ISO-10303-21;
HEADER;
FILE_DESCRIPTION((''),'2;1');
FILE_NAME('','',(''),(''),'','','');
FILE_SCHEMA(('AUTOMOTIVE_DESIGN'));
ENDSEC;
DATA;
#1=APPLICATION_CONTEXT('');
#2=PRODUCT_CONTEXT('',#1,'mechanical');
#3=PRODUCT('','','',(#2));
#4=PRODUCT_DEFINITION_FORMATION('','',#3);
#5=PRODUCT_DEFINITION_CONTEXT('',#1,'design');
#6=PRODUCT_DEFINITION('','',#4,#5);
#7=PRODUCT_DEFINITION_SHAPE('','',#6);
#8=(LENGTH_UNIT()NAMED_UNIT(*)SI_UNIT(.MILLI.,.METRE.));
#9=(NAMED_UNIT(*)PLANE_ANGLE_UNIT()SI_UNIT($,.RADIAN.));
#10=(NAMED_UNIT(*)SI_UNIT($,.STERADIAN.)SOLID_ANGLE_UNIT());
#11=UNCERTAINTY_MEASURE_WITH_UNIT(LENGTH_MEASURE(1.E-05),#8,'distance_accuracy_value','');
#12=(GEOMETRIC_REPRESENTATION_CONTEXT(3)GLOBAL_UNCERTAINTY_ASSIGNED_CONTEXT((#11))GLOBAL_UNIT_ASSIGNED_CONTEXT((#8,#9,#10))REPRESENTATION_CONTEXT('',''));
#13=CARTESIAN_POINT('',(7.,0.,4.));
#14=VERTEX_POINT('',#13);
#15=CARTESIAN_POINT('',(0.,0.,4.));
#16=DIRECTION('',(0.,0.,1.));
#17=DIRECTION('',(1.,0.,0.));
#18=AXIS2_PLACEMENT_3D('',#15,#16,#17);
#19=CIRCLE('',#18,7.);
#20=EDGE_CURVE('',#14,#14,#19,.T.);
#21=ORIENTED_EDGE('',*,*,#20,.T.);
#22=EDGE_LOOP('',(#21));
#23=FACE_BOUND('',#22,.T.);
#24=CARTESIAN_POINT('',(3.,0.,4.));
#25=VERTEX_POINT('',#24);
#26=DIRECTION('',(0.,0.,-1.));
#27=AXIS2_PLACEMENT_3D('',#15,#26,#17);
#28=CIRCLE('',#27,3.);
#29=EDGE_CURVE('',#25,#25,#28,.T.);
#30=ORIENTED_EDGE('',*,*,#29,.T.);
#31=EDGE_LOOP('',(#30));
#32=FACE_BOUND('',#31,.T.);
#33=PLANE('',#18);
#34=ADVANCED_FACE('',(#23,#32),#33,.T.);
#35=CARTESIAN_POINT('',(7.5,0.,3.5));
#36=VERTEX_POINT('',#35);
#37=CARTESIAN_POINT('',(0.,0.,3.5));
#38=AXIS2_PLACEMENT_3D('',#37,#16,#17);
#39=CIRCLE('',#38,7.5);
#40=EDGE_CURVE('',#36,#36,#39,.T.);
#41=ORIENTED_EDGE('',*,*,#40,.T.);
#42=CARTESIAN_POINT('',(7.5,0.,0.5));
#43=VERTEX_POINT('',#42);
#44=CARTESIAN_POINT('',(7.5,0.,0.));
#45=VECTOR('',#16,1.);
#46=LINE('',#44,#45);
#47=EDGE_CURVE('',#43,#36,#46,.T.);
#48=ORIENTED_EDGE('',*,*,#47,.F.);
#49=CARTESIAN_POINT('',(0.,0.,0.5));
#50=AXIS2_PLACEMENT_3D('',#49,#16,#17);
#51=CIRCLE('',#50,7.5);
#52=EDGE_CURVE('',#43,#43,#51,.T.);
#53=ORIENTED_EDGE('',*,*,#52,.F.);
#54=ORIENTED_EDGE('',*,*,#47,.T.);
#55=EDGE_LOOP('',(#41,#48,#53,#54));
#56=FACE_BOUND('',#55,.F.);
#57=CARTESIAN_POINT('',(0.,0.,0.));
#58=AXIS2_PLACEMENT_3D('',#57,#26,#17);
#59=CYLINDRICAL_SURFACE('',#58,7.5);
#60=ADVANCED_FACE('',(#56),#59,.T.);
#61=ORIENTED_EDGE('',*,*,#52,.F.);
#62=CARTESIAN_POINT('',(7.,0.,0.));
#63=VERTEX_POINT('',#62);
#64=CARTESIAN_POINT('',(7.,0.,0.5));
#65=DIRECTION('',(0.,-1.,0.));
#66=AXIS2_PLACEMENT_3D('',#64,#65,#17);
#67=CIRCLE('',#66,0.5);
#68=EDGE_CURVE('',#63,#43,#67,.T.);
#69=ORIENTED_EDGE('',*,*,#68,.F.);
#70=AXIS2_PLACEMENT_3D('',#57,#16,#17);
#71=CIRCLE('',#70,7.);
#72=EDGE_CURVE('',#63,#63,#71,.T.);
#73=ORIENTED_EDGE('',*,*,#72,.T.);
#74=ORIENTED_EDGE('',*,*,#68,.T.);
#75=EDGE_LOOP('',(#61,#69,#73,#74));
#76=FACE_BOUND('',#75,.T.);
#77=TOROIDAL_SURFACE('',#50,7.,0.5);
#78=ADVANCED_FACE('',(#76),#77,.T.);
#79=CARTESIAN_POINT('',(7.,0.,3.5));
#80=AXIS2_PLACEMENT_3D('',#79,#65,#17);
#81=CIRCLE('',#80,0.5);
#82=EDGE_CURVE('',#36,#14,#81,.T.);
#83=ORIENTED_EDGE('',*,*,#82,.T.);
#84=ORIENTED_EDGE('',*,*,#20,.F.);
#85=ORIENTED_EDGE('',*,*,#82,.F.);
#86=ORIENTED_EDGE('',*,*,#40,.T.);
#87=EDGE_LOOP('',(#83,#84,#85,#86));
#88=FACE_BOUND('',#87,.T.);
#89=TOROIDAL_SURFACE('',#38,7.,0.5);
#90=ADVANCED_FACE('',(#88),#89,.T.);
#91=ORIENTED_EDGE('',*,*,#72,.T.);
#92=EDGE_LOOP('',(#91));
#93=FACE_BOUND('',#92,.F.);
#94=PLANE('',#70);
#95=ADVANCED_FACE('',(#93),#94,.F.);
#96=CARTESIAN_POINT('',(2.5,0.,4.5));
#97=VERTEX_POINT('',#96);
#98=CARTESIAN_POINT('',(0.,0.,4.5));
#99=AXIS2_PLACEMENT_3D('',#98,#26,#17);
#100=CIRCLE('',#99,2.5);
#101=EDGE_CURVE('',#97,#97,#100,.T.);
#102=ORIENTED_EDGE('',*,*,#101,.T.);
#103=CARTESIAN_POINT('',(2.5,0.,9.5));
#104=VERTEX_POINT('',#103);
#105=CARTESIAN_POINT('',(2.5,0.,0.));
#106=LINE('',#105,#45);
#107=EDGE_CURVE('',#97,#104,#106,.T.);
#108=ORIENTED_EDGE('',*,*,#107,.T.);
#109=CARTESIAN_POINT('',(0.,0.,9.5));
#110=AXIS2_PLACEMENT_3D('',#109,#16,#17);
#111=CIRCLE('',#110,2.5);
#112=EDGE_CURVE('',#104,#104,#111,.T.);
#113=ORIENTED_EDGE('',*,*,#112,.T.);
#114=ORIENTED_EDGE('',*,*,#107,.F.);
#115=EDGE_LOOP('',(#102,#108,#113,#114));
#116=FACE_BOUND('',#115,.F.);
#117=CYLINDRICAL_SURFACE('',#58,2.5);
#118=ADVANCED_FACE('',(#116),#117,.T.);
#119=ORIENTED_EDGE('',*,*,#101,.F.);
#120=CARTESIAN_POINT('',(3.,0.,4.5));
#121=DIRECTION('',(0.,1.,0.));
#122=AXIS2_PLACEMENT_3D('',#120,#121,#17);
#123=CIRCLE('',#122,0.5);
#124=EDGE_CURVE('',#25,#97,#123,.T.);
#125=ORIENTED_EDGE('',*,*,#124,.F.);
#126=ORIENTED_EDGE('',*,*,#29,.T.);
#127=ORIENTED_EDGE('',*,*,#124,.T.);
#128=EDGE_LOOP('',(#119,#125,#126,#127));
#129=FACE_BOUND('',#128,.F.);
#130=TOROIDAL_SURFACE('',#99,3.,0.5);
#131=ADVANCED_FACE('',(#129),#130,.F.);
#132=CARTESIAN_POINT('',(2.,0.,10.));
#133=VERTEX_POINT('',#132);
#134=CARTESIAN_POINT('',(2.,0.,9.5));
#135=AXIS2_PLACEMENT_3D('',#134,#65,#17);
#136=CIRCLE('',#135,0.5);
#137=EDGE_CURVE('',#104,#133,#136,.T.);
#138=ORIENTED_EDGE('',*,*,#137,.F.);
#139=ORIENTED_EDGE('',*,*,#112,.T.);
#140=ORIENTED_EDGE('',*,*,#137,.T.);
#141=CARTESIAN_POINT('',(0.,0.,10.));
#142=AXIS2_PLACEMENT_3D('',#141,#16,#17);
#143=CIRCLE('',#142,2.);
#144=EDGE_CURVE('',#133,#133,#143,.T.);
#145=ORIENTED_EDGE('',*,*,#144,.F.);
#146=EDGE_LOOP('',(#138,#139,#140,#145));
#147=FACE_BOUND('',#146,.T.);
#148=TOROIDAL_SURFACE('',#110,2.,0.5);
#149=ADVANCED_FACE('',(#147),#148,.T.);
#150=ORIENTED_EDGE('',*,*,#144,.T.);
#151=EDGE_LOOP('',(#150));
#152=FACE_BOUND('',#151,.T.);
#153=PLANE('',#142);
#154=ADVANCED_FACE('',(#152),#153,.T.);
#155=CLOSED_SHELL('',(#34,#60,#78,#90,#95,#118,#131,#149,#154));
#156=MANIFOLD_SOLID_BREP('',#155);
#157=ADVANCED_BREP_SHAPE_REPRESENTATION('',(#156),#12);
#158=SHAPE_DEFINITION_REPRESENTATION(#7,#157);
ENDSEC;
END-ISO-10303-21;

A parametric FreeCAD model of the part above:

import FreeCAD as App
import Part
import Sketcher

V = App.Vector
Q = App.Units.Quantity


def edges_at(feature, points):
    """Names of the edges that pass closest to the given points."""
    edges = feature.Shape.Edges
    near = lambda p: min(range(len(edges)), key=lambda i: edges[i].distToShape(Part.Vertex(*p))[0])
    return sorted({f"Edge{near(p) + 1}" for p in points})

doc = App.newDocument("Part")
body = doc.addObject("PartDesign::Body", "Body")

# Sketch on XY plane
sketch1 = doc.addObject("Sketcher::SketchObject", "Sketch")
body.addObject(sketch1)
sketch1.AttachmentSupport = (doc.XY_Plane, [""])
sketch1.MapMode = "FlatFace"
sketch1.addGeometry(Part.Circle(V(0, 0, 0), V(0, 0, 1), 8), False)
sketch1.addConstraint(Sketcher.Constraint("Coincident", 0, 3, -1, 1))
sketch1.addConstraint(Sketcher.Constraint("Diameter", 0, Q("15 mm")))
pad1 = doc.addObject("PartDesign::Pad", "Pad")
body.addObject(pad1)
pad1.Profile = sketch1
pad1.Length = 4

# Sketch on XY plane
sketch2 = doc.addObject("Sketcher::SketchObject", "Sketch001")
body.addObject(sketch2)
sketch2.AttachmentSupport = (doc.XY_Plane, [""])
sketch2.MapMode = "FlatFace"
sketch2.addGeometry(Part.Circle(V(0, 0, 0), V(0, 0, 1), 2.5), False)
sketch2.addConstraint(Sketcher.Constraint("Coincident", 0, 3, -1, 1))
sketch2.addConstraint(Sketcher.Constraint("Diameter", 0, Q("5 mm")))
pad2 = doc.addObject("PartDesign::Pad", "Pad001")
body.addObject(pad2)
pad2.Profile = sketch2
pad2.Length = 10
doc.recompute()

fillet = doc.addObject("PartDesign::Fillet", "Fillet")
body.addObject(fillet)
fillet.Base = (pad2, edges_at(pad2, [
    (-7.5, 0, 4),
    (-7.5, 0, 0),
    (-2.5, 0, 10),
    (-2.5, 0, 4),
]))
fillet.Radius = 0.5

doc.recompute()
